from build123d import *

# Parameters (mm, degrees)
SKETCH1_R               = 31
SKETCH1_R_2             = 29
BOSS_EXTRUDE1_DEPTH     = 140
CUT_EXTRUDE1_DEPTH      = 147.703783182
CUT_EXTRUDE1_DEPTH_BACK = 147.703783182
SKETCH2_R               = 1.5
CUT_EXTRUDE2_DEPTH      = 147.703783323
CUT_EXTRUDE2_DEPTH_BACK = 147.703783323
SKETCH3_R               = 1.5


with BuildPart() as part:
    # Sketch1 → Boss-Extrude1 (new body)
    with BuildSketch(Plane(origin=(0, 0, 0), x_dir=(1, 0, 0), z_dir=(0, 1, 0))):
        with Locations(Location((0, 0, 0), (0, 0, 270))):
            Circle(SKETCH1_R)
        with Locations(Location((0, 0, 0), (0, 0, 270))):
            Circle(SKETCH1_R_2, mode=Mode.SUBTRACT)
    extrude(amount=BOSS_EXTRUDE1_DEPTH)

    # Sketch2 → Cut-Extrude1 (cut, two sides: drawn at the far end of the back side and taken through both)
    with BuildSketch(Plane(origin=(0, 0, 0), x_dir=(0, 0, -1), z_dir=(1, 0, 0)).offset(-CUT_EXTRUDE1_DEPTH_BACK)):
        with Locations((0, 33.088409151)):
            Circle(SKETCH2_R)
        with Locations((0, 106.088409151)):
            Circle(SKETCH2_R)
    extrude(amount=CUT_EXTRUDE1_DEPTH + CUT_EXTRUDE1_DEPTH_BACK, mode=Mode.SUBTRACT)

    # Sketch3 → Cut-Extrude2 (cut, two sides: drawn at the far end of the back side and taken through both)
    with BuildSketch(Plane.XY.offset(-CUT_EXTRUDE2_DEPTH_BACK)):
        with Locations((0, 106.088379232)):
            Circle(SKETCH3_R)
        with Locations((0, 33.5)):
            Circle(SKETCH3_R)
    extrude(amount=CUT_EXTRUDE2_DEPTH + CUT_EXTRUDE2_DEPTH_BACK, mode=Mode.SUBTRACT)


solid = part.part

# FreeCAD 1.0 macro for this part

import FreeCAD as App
import Part
import Sketcher

V = App.Vector

doc = App.newDocument("Part")
params = doc.addObject("Spreadsheet::Sheet", "Params")
for row, (alias, value) in enumerate([
    ("sketch1_diameter", "62 mm"),
    ("sketch1_diameter2", "58 mm"),
    ("pad1_length", "140 mm"),
    ("sketch2_diameter", "3 mm"),
    ("sketch3_diameter", "3 mm"),
], start=1):
    params.set(f"A{row}", alias)
    params.set(f"B{row}", "=" + value)
    params.setAlias(f"B{row}", alias)

body = doc.addObject("PartDesign::Body", "Body")

# Sketch on XZ plane
sketch1 = doc.addObject("Sketcher::SketchObject", "Sketch")
body.addObject(sketch1)
sketch1.AttachmentSupport = (doc.XZ_Plane, [""])
sketch1.MapMode = "FlatFace"
sketch1.addGeometry(Part.Circle(V(0, 0, 0), V(0, 0, 1), 31), False)
sketch1.addGeometry(Part.Circle(V(0, 0, 0), V(0, 0, 1), 29), False)
sketch1.addConstraint(Sketcher.Constraint("Coincident", 0, 3, -1, 1))
sketch1.addConstraint(Sketcher.Constraint("Coincident", 1, 3, -1, 1))
sketch1.addConstraint(Sketcher.Constraint("Diameter", 0, 62.0))
sketch1.addConstraint(Sketcher.Constraint("Diameter", 1, 58.0))
sketch1.setExpression("Constraints[2]", "Params.sketch1_diameter")
sketch1.setExpression("Constraints[3]", "Params.sketch1_diameter2")
pad1 = doc.addObject("PartDesign::Pad", "Pad")
body.addObject(pad1)
pad1.Profile = sketch1
pad1.setExpression("Length", "Params.pad1_length")
pad1.Reversed = True

# Sketch on YZ plane
sketch2 = doc.addObject("Sketcher::SketchObject", "Sketch001")
body.addObject(sketch2)
sketch2.AttachmentSupport = (doc.YZ_Plane, [""])
sketch2.MapMode = "FlatFace"
sketch2.addGeometry(Part.Circle(V(33.1, 0, 0), V(0, 0, 1), 1.5), False)
sketch2.addGeometry(Part.Circle(V(106.1, 0, 0), V(0, 0, 1), 1.5), False)
sketch2.addConstraint(Sketcher.Constraint("Equal", 0, 1))
sketch2.addConstraint(Sketcher.Constraint("PointOnObject", 0, 3, -1))
sketch2.addConstraint(Sketcher.Constraint("PointOnObject", 1, 3, -1))
sketch2.addConstraint(Sketcher.Constraint("Diameter", 0, 3.0))
sketch2.addConstraint(Sketcher.Constraint("DistanceX", 0, 3, 1, 3, 73.0))
sketch2.addConstraint(Sketcher.Constraint("DistanceX", -1, 1, 0, 3, 33.088409))
sketch2.setExpression("Constraints[3]", "Params.sketch2_diameter")
pocket1 = doc.addObject("PartDesign::Pocket", "Pocket")
body.addObject(pocket1)
pocket1.Profile = sketch2
pocket1.Type = "ThroughAll"
pocket1.Midplane = True

# Sketch on XY plane
sketch3 = doc.addObject("Sketcher::SketchObject", "Sketch002")
body.addObject(sketch3)
sketch3.AttachmentSupport = (doc.XY_Plane, [""])
sketch3.MapMode = "FlatFace"
sketch3.addGeometry(Part.Circle(V(0, 106.1, 0), V(0, 0, 1), 1.5), False)
sketch3.addGeometry(Part.Circle(V(0, 33.5, 0), V(0, 0, 1), 1.5), False)
sketch3.addConstraint(Sketcher.Constraint("Equal", 0, 1))
sketch3.addConstraint(Sketcher.Constraint("PointOnObject", 0, 3, -2))
sketch3.addConstraint(Sketcher.Constraint("PointOnObject", 1, 3, -2))
sketch3.addConstraint(Sketcher.Constraint("Diameter", 0, 3.0))
sketch3.addConstraint(Sketcher.Constraint("DistanceY", -1, 1, 1, 3, 33.5))
sketch3.addConstraint(Sketcher.Constraint("DistanceY", -1, 1, 0, 3, 106.088379))
sketch3.setExpression("Constraints[3]", "Params.sketch3_diameter")
pocket2 = doc.addObject("PartDesign::Pocket", "Pocket001")
body.addObject(pocket2)
pocket2.Profile = sketch3
pocket2.Type = "ThroughAll"
pocket2.Midplane = True

doc.recompute()
